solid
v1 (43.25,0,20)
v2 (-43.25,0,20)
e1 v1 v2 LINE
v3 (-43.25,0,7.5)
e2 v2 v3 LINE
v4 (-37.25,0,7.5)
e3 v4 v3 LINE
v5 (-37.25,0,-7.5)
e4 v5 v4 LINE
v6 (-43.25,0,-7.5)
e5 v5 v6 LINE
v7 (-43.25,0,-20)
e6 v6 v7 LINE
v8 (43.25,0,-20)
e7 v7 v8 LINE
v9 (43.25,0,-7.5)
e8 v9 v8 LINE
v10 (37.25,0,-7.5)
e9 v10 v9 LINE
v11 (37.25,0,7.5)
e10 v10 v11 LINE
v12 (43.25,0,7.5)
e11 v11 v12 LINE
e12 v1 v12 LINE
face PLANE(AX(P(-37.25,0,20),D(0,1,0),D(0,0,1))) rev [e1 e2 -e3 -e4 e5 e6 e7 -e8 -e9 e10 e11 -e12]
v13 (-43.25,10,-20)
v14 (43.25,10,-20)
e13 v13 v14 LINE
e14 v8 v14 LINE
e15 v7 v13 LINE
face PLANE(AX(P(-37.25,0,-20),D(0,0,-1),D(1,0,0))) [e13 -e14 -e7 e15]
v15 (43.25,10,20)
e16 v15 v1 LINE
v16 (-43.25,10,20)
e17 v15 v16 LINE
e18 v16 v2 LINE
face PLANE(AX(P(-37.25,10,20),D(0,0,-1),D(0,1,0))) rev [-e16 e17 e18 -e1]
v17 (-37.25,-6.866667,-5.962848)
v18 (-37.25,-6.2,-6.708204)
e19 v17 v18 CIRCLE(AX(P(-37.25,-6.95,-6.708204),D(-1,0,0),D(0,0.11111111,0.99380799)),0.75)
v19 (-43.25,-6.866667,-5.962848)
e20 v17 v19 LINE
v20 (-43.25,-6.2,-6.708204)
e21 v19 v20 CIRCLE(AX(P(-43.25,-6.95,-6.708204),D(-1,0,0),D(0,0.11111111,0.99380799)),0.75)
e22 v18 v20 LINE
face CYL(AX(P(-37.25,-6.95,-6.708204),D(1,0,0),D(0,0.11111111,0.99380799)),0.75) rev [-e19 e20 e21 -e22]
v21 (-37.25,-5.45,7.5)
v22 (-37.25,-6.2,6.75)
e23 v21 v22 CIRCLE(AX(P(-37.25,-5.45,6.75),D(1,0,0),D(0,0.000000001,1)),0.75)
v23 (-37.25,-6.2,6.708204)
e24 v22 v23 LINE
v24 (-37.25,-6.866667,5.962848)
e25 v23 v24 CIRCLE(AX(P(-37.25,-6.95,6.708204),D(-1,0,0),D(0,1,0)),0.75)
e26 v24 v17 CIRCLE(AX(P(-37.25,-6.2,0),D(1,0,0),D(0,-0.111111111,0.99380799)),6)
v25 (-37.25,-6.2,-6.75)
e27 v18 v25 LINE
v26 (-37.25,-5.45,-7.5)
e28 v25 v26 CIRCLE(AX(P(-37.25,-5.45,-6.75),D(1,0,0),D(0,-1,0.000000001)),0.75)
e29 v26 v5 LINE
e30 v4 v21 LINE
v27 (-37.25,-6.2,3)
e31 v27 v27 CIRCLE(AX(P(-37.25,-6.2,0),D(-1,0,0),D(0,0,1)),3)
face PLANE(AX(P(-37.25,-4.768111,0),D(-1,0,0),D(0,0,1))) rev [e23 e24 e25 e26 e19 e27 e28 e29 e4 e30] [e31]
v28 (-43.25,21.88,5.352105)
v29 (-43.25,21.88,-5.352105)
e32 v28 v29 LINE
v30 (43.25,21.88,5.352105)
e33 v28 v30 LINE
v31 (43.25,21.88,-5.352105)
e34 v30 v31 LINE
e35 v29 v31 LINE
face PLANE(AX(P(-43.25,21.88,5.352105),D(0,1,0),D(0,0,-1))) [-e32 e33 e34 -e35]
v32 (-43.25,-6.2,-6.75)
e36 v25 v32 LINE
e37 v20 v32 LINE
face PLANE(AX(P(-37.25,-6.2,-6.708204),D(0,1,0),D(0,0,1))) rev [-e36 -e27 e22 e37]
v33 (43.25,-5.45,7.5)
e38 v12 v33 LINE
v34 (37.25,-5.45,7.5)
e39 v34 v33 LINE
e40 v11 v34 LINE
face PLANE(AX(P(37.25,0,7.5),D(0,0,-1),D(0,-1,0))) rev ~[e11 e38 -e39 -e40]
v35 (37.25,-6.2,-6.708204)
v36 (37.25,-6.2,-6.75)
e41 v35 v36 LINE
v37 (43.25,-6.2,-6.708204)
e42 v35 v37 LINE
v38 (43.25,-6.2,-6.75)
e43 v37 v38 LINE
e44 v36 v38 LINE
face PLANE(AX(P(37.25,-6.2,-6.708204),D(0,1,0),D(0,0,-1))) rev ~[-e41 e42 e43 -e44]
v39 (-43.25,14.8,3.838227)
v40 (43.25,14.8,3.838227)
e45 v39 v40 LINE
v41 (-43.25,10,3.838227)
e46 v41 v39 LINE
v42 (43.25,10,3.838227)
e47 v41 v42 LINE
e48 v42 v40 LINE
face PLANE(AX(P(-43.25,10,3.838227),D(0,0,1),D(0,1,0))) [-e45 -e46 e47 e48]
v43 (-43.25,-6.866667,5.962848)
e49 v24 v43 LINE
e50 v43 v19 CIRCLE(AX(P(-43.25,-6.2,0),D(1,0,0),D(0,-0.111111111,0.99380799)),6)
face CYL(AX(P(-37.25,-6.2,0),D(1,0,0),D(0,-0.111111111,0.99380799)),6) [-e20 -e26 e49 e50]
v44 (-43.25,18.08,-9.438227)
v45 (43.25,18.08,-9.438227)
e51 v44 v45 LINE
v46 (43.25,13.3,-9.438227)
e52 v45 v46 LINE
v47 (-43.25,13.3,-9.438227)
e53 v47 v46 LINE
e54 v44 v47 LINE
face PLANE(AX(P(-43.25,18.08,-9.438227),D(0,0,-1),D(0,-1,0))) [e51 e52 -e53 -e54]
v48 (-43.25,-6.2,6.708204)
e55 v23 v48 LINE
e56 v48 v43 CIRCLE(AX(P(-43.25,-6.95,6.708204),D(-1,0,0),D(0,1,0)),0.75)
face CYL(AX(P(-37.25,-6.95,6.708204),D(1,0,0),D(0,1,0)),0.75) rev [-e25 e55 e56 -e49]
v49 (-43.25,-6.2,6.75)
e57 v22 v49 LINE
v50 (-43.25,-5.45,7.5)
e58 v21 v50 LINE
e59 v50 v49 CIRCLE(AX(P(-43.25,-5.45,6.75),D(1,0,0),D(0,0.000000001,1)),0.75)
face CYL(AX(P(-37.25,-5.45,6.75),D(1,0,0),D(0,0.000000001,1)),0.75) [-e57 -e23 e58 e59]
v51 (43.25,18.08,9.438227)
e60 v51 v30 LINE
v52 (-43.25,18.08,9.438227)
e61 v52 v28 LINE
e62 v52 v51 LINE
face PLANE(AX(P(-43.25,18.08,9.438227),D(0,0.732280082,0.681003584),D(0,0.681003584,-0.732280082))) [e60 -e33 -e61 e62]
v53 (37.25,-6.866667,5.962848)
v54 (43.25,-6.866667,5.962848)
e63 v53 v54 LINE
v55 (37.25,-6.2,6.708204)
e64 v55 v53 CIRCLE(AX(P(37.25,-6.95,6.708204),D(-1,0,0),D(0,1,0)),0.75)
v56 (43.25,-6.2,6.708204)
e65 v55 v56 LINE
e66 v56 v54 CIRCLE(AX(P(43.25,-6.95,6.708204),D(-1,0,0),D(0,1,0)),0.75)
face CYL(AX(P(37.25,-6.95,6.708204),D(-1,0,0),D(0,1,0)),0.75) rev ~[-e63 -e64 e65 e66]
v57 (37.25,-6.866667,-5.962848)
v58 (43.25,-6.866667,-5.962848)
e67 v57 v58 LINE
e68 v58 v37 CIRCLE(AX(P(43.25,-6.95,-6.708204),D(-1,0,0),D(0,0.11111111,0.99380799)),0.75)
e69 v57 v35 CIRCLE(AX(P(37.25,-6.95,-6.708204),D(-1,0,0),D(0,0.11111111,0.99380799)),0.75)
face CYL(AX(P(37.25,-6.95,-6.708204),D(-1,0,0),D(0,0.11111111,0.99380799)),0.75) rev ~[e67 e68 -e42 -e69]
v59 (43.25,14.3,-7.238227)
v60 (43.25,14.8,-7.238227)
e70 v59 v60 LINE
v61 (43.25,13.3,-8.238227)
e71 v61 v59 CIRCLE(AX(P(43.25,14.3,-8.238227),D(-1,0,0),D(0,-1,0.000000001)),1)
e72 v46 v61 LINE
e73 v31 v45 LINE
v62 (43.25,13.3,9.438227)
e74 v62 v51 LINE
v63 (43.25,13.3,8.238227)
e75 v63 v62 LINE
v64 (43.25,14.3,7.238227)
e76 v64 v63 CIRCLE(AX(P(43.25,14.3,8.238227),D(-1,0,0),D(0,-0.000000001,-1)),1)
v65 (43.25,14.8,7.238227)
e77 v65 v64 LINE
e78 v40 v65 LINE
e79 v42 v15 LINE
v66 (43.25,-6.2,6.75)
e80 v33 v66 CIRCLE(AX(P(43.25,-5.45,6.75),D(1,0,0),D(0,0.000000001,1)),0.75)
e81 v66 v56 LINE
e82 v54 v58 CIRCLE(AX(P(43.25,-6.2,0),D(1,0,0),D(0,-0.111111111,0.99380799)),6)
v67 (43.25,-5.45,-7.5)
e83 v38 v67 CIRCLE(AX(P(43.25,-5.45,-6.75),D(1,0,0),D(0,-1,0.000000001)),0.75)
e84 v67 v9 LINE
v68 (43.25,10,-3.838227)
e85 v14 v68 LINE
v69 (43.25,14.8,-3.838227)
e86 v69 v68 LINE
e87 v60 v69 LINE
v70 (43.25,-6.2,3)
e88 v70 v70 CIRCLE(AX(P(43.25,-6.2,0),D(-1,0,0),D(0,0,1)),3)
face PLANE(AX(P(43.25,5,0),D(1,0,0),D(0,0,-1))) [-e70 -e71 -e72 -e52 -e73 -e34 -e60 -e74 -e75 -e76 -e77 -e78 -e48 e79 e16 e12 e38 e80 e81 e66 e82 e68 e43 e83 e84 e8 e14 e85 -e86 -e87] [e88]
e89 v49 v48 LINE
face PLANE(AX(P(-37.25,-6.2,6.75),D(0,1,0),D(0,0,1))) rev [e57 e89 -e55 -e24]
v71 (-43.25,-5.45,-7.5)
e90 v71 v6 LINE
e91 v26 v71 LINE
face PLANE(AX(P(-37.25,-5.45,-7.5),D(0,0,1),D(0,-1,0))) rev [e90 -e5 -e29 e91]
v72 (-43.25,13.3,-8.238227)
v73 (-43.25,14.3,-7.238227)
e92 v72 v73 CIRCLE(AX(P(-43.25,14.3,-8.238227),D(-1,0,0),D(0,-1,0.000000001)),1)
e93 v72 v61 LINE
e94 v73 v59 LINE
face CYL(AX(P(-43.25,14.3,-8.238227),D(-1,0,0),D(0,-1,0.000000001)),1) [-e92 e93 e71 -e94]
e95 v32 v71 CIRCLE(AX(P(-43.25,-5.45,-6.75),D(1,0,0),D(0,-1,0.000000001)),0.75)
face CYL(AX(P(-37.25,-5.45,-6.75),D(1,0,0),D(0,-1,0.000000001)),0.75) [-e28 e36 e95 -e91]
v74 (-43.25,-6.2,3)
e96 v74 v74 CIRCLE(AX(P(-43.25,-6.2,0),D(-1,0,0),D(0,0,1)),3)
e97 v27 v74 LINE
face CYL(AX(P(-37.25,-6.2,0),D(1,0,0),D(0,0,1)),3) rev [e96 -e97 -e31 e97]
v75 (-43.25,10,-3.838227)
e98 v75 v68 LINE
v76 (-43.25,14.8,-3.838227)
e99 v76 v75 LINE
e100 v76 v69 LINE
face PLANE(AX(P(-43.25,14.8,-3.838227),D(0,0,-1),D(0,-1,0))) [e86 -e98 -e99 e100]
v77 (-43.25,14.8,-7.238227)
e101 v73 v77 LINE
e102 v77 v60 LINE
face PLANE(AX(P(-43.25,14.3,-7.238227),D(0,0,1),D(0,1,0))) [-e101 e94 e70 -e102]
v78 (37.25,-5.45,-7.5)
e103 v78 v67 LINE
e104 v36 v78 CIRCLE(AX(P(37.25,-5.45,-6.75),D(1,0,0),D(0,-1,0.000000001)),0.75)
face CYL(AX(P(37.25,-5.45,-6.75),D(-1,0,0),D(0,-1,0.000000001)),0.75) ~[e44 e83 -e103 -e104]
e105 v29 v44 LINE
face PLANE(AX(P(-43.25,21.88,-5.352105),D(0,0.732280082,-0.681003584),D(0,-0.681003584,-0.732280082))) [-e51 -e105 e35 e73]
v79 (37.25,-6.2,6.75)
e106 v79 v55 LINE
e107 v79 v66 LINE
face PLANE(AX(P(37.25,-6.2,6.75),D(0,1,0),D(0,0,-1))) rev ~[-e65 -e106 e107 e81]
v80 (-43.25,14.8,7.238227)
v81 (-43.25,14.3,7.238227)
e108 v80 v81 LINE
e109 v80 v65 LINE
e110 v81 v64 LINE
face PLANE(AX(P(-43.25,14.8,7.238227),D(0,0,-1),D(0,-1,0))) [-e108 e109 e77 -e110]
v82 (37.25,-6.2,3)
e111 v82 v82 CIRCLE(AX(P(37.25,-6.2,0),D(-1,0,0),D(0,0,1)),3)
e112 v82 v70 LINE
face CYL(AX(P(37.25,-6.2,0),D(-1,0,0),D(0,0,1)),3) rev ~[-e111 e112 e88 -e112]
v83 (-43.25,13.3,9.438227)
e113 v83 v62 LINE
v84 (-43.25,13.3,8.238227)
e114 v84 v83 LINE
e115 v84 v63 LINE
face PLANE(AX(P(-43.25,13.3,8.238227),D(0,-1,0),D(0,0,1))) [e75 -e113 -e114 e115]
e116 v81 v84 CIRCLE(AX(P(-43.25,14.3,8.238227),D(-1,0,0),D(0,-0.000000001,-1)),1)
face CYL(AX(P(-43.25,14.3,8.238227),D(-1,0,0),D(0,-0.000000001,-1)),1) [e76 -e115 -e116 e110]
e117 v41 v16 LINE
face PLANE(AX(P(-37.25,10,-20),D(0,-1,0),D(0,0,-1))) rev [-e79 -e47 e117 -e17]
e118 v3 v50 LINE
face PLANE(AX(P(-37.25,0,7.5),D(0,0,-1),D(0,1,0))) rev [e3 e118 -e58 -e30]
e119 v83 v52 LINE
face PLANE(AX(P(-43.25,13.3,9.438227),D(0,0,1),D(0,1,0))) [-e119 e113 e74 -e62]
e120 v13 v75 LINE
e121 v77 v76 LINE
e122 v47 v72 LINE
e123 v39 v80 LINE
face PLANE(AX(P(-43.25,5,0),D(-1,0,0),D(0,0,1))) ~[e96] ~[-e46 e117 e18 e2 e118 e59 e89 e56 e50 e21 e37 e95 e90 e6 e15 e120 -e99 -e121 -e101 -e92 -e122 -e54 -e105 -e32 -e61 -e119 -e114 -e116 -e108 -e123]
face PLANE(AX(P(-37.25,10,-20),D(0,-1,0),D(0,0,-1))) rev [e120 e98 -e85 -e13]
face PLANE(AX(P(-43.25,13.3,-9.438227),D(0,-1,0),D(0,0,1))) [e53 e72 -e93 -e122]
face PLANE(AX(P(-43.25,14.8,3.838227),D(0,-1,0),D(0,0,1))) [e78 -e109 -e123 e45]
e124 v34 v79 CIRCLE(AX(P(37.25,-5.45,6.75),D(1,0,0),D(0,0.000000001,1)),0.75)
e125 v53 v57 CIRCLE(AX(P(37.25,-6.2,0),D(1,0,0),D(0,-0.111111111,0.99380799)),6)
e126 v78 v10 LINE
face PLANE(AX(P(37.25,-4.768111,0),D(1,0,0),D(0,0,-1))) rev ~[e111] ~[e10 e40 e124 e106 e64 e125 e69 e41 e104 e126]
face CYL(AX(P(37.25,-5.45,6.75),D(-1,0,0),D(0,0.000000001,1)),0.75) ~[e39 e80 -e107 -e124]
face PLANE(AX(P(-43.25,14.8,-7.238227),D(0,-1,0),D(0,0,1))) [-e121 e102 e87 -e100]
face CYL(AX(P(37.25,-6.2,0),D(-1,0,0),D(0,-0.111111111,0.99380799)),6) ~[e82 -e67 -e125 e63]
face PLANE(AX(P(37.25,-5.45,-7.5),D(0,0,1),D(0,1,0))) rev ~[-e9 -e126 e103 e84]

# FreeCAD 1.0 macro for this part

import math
import FreeCAD as App
import Part
import Sketcher
from FreeCAD import Vector


def add_polygon(sketch, points):
    """Adds a closed chain of lines whose ends are joined by coincident constraints."""
    first, n = sketch.GeometryCount, len(points)
    for a, b in zip(points, points[1:] + points[:1]):
        sketch.addGeometry(Part.LineSegment(App.Vector(*a, 0), App.Vector(*b, 0)), False)
    for i in range(n):
        sketch.addConstraint(Sketcher.Constraint("Coincident", first + i, 2, first + (i + 1) % n, 1))

doc = App.newDocument("Part")
body = doc.addObject("PartDesign::Body", "Body")

# Sketch on XZ plane
sketch1 = doc.addObject("Sketcher::SketchObject", "Sketch")
body.addObject(sketch1)
sketch1.AttachmentSupport = (doc.XZ_Plane, [""])
sketch1.MapMode = "FlatFace"
add_polygon(sketch1, [(-37, -20), (-37, 20), (37, 20), (37, -20)])  # lines 0-3
sketch1.addConstraint([
    Sketcher.Constraint("Vertical", 0),
    Sketcher.Constraint("Horizontal", 1),
    Sketcher.Constraint("Vertical", 2),
    Sketcher.Constraint("Horizontal", 3),
    Sketcher.Constraint("Symmetric", 0, 2, 2, 2, -1, 1),
    Sketcher.Constraint("DistanceY", 0, 1, 0, 2, 40.0),
    Sketcher.Constraint("DistanceX", 1, 1, 1, 2, 74.5),
])
pad1 = doc.addObject("PartDesign::Pad", "Pad")
body.addObject(pad1)
pad1.Profile = sketch1
pad1.Length = 10
pad1.Reversed = True

# Sketch on YZ plane
sketch2 = doc.addObject("Sketcher::SketchObject", "Sketch001")
body.addObject(sketch2)
sketch2.AttachmentSupport = (doc.YZ_Plane, [""])
sketch2.MapMode = "FlatFace"
sketch2.AttachmentOffset = App.Placement(Vector(0, 0, 37.25), App.Rotation())
sketch2.addGeometry([
    Part.LineSegment(Vector(-5.45, -7.5, 0), Vector(0, -7.5, 0)),  # 0
    Part.LineSegment(Vector(0, -7.5, 0), Vector(0, -20, 0)),  # 1
    Part.LineSegment(Vector(0, -20, 0), Vector(10, -20, 0)),  # 2
    Part.LineSegment(Vector(10, -20, 0), Vector(10, 20, 0)),  # 3
    Part.LineSegment(Vector(10, 20, 0), Vector(0, 20, 0)),  # 4
    Part.LineSegment(Vector(0, 20, 0), Vector(0, 7.5, 0)),  # 5
    Part.LineSegment(Vector(0, 7.5, 0), Vector(-5.45, 7.5, 0)),  # 6
    Part.ArcOfCircle(Part.Circle(Vector(-5.45, 6.75, 0), Vector(0, 0, 1), 0.75), math.radians(90), math.radians(180)),  # 7
    Part.LineSegment(Vector(-6.2, 6.75, 0), Vector(-6.2, 6.708, 0)),  # 8
    Part.ArcOfCircle(Part.Circle(Vector(-6.95, 6.708, 0), Vector(0, 0, 1), 0.75), math.radians(-84), math.radians(0)),  # 9
    Part.ArcOfCircle(Part.Circle(Vector(-6.2, 0, 0), Vector(0, 0, 1), 6), math.radians(96), math.radians(264)),  # 10
    Part.ArcOfCircle(Part.Circle(Vector(-6.95, -6.708, 0), Vector(0, 0, 1), 0.75), math.radians(0), math.radians(84)),  # 11
    Part.LineSegment(Vector(-6.2, -6.708, 0), Vector(-6.2, -6.75, 0)),  # 12
    Part.ArcOfCircle(Part.Circle(Vector(-5.45, -6.75, 0), Vector(0, 0, 1), 0.75), math.radians(180), math.radians(270)),  # 13
    Part.Circle(Vector(-6.2, 0, 0), Vector(0, 0, 1), 3),  # 14
], False)
sketch2.addConstraint([
    Sketcher.Constraint("Coincident", 0, 2, 1, 1),
    Sketcher.Constraint("Coincident", 1, 2, 2, 1),
    Sketcher.Constraint("Coincident", 2, 2, 3, 1),
    Sketcher.Constraint("Coincident", 3, 2, 4, 1),
    Sketcher.Constraint("Coincident", 4, 2, 5, 1),
    Sketcher.Constraint("Coincident", 5, 2, 6, 1),
    Sketcher.Constraint("Tangent", 6, 2, 7, 1),
    Sketcher.Constraint("Tangent", 7, 2, 8, 1),
    Sketcher.Constraint("Tangent", 8, 2, 9, 2),
    Sketcher.Constraint("Tangent", 9, 1, 10, 1),
    Sketcher.Constraint("Tangent", 10, 2, 11, 2),
    Sketcher.Constraint("Tangent", 11, 1, 12, 1),
    Sketcher.Constraint("Tangent", 12, 2, 13, 1),
    Sketcher.Constraint("Tangent", 13, 2, 0, 1),
    Sketcher.Constraint("Horizontal", 0),
    Sketcher.Constraint("Vertical", 1),
    Sketcher.Constraint("Horizontal", 2),
    Sketcher.Constraint("Vertical", 3),
    Sketcher.Constraint("Horizontal", 4),
    Sketcher.Constraint("Vertical", 5),
    Sketcher.Constraint("Horizontal", 6),
    Sketcher.Constraint("Vertical", 8),
    Sketcher.Constraint("Vertical", 12),
    Sketcher.Constraint("Coincident", 14, 3, 10, 3),
    Sketcher.Constraint("Equal", 7, 9),
    Sketcher.Constraint("Equal", 9, 11),
    Sketcher.Constraint("Equal", 11, 13),
    Sketcher.Constraint("Symmetric", 1, 2, 4, 2, -1, 1),
    Sketcher.Constraint("Symmetric", 9, 3, 11, 3, -1),
    Sketcher.Constraint("Symmetric", 0, 2, 5, 2, -1),
    Sketcher.Constraint("Vertical", 14, 3, 7, 2),
    Sketcher.Constraint("Diameter", 14, 6.0),
    Sketcher.Constraint("Radius", 10, 6.0),
    Sketcher.Constraint("DistanceX", 2, 1, 2, 2, 10.0),
    Sketcher.Constraint("DistanceY", 3, 1, 3, 2, 40.0),
    Sketcher.Constraint("Radius", 7, 0.75),
    Sketcher.Constraint("DistanceY", 1, 2, 1, 1, 12.5),
    Sketcher.Constraint("DistanceX", 0, 1, 0, 2, 5.45),
])
pad2 = doc.addObject("PartDesign::Pad", "Pad001")
body.addObject(pad2)
pad2.Profile = sketch2
pad2.Length = 6
doc.recompute()

mirrored = doc.addObject("PartDesign::Mirrored", "Mirrored")
body.addObject(mirrored)
mirrored.Originals = [pad2]
mirrored.MirrorPlane = (doc.YZ_Plane, [""])
body.Tip = mirrored

# Sketch on YZ plane
sketch3 = doc.addObject("Sketcher::SketchObject", "Sketch002")
body.addObject(sketch3)
sketch3.AttachmentSupport = (doc.YZ_Plane, [""])
sketch3.MapMode = "FlatFace"
sketch3.AttachmentOffset = App.Placement(Vector(0, 0, -43.25), App.Rotation())
sketch3.addGeometry([
    Part.LineSegment(Vector(14.8, -3.8, 0), Vector(10, -3.8, 0)),  # 0
    Part.LineSegment(Vector(10, -3.8, 0), Vector(10, 3.8, 0)),  # 1
    Part.LineSegment(Vector(10, 3.8, 0), Vector(14.8, 3.8, 0)),  # 2
    Part.LineSegment(Vector(14.8, 3.8, 0), Vector(14.8, 7.2, 0)),  # 3
    Part.LineSegment(Vector(14.8, 7.2, 0), Vector(14.3, 7.2, 0)),  # 4
    Part.ArcOfCircle(Part.Circle(Vector(14.3, 8.2, 0), Vector(0, 0, 1), 1), math.radians(-180), math.radians(-90)),  # 5
    Part.LineSegment(Vector(13.3, 8.2, 0), Vector(13.3, 9.4, 0)),  # 6
    Part.LineSegment(Vector(13.3, 9.4, 0), Vector(18.1, 9.4, 0)),  # 7
    Part.LineSegment(Vector(18.1, 9.4, 0), Vector(21.9, 5.4, 0)),  # 8
    Part.LineSegment(Vector(21.9, 5.4, 0), Vector(21.9, -5.4, 0)),  # 9
    Part.LineSegment(Vector(21.9, -5.4, 0), Vector(18.1, -9.4, 0)),  # 10
    Part.LineSegment(Vector(18.1, -9.4, 0), Vector(13.3, -9.4, 0)),  # 11
    Part.LineSegment(Vector(13.3, -9.4, 0), Vector(13.3, -8.2, 0)),  # 12
    Part.ArcOfCircle(Part.Circle(Vector(14.3, -8.2, 0), Vector(0, 0, 1), 1), math.radians(90), math.radians(180)),  # 13
    Part.LineSegment(Vector(14.3, -7.2, 0), Vector(14.8, -7.2, 0)),  # 14
    Part.LineSegment(Vector(14.8, -7.2, 0), Vector(14.8, -3.8, 0)),  # 15
], False)
sketch3.addConstraint([
    Sketcher.Constraint("Coincident", 0, 2, 1, 1),
    Sketcher.Constraint("Coincident", 1, 2, 2, 1),
    Sketcher.Constraint("Coincident", 2, 2, 3, 1),
    Sketcher.Constraint("Coincident", 3, 2, 4, 1),
    Sketcher.Constraint("Tangent", 4, 2, 5, 2),
    Sketcher.Constraint("Tangent", 5, 1, 6, 1),
    Sketcher.Constraint("Coincident", 6, 2, 7, 1),
    Sketcher.Constraint("Coincident", 7, 2, 8, 1),
    Sketcher.Constraint("Coincident", 8, 2, 9, 1),
    Sketcher.Constraint("Coincident", 9, 2, 10, 1),
    Sketcher.Constraint("Coincident", 10, 2, 11, 1),
    Sketcher.Constraint("Coincident", 11, 2, 12, 1),
    Sketcher.Constraint("Tangent", 12, 2, 13, 2),
    Sketcher.Constraint("Tangent", 13, 1, 14, 1),
    Sketcher.Constraint("Coincident", 14, 2, 15, 1),
    Sketcher.Constraint("Coincident", 15, 2, 0, 1),
    Sketcher.Constraint("Horizontal", 0),
    Sketcher.Constraint("Vertical", 1),
    Sketcher.Constraint("Horizontal", 2),
    Sketcher.Constraint("Vertical", 3),
    Sketcher.Constraint("Horizontal", 4),
    Sketcher.Constraint("Vertical", 6),
    Sketcher.Constraint("Horizontal", 7),
    Sketcher.Constraint("Vertical", 9),
    Sketcher.Constraint("Horizontal", 11),
    Sketcher.Constraint("Vertical", 12),
    Sketcher.Constraint("Horizontal", 14),
    Sketcher.Constraint("Vertical", 15),
    Sketcher.Constraint("Equal", 5, 13),
    Sketcher.Constraint("Symmetric", 5, 3, 13, 3, -1),
    Sketcher.Constraint("Symmetric", 7, 2, 10, 2, -1),
    Sketcher.Constraint("Symmetric", 2, 2, 15, 2, -1),
    Sketcher.Constraint("Equal", 8, 10),
    Sketcher.Constraint("Radius", 5, 1.0),
    Sketcher.Constraint("DistanceX", 0, 2, 0, 1, 4.8),
    Sketcher.Constraint("DistanceX", 4, 2, 4, 1, 0.5),
    Sketcher.Constraint("DistanceY", 3, 1, 3, 2, 3.4),
    Sketcher.Constraint("DistanceY", 6, 1, 6, 2, 1.2),
    Sketcher.Constraint("DistanceX", -1, 1, 0, 2, 10.0),
    Sketcher.Constraint("DistanceX", 7, 1, 7, 2, 4.78),
    Sketcher.Constraint("DistanceX", 7, 2, 8, 2, 3.8),
    Sketcher.Constraint("Distance", 8, 5.58),
    Sketcher.Constraint("DistanceY", 9, 2, 9, 1, 10.704209),
])
pad3 = doc.addObject("PartDesign::Pad", "Pad002")
body.addObject(pad3)
pad3.Profile = sketch3
pad3.Length = 86.5

doc.recompute()
